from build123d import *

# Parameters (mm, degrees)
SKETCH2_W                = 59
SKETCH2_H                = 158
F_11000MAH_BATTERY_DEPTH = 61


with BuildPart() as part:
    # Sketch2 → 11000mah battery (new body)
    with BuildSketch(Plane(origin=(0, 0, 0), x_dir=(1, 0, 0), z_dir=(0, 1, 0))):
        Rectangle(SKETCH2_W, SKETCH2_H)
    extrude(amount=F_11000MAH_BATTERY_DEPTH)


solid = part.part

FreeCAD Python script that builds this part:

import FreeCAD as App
import Part
import Sketcher

V = App.Vector

doc = App.newDocument("Part")
body = doc.addObject("PartDesign::Body", "Body")

sketch1 = body.newObject("Sketcher::SketchObject", "Sketch")
sketch1.AttachmentSupport = (doc.getObject("XZ_Plane"), [""])
sketch1.MapMode = "FlatFace"
sketch1.addGeometry([
    Part.LineSegment(V(-30, -79, 0), V(-30, 79, 0)),
    Part.LineSegment(V(-30, 79, 0), V(30, 79, 0)),
    Part.LineSegment(V(30, 79, 0), V(30, -79, 0)),
    Part.LineSegment(V(30, -79, 0), V(-30, -79, 0)),
], False)
sketch1.addConstraint([
    Sketcher.Constraint("Coincident", 0, 2, 1, 1),
    Sketcher.Constraint("Coincident", 1, 2, 2, 1),
    Sketcher.Constraint("Coincident", 2, 2, 3, 1),
    Sketcher.Constraint("Coincident", 3, 2, 0, 1),
    Sketcher.Constraint("Vertical", 0),
    Sketcher.Constraint("Horizontal", 1),
    Sketcher.Constraint("Vertical", 2),
    Sketcher.Constraint("Horizontal", 3),
    Sketcher.Constraint("Symmetric", 0, 2, 2, 2, -1, 1),
    Sketcher.Constraint("DistanceX", 1, 1, 1, 2, 59.0),
    Sketcher.Constraint("DistanceY", 0, 1, 0, 2, 158.0),
])
pad1 = body.newObject("PartDesign::Pad", "Pad")
pad1.Profile = sketch1
pad1.Length = 61
pad1.Reversed = True

doc.recompute()
